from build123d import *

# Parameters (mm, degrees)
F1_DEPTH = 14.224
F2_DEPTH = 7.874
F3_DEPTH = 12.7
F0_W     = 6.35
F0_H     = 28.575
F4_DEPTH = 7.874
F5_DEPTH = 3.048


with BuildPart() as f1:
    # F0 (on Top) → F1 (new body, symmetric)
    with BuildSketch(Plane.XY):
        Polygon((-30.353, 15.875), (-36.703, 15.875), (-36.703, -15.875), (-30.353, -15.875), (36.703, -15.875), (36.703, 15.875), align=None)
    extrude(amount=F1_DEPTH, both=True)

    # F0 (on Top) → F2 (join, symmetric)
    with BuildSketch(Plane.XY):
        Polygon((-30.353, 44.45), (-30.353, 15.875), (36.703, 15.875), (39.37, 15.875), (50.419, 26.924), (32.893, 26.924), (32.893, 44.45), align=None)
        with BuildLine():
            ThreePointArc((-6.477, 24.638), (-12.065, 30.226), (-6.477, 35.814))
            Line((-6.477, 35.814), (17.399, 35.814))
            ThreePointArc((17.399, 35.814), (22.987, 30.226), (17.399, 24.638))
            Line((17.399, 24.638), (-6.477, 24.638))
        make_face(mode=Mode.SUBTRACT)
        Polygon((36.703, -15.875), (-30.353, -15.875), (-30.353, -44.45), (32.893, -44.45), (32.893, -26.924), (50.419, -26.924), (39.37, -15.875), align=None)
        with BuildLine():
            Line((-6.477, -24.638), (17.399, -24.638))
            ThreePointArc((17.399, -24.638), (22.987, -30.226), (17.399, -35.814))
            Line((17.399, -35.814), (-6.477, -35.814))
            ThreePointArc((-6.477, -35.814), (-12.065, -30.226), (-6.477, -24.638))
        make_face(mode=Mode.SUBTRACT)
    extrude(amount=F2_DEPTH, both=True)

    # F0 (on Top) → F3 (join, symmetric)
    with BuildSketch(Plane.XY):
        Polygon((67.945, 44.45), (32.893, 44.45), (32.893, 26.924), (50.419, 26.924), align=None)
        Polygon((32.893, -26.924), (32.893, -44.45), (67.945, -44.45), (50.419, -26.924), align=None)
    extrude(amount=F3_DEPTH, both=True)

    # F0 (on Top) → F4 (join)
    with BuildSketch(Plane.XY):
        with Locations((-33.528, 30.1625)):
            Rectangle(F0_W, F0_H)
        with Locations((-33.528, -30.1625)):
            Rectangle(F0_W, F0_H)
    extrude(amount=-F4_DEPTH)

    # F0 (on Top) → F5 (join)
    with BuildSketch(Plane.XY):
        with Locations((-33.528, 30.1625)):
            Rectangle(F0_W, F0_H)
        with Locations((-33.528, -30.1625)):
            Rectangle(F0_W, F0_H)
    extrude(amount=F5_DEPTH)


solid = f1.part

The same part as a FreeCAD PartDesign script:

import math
import FreeCAD as App
import Part
import Sketcher

V = App.Vector
Q = App.Units.Quantity


def add_polygon(sketch, points):
    """Adds a closed chain of lines whose ends are joined by coincident constraints."""
    first, n = sketch.GeometryCount, len(points)
    for a, b in zip(points, points[1:] + points[:1]):
        sketch.addGeometry(Part.LineSegment(App.Vector(*a, 0), App.Vector(*b, 0)), False)
    for i in range(n):
        sketch.addConstraint(Sketcher.Constraint("Coincident", first + i, 2, first + (i + 1) % n, 1))

doc = App.newDocument("Part")
params = doc.addObject("Spreadsheet::Sheet", "Params")
for row, (alias, value) in enumerate([
    ("sketch1_width", "2.89 in"),
    ("sketch1_height", "1.25 in"),
    ("pad1_length", "1.12 in"),
    ("sketch2_radius", "0.22 in"),
    ("sketch2_width", "0.69 in"),
    ("sketch2_width2", "2.49 in"),
    ("sketch2_width3", "0.94 in"),
    ("sketch2_width4", "2.745 in"),
    ("pad2_length", "0.62 in"),
    ("sketch3_width", "1.38 in"),
    ("pad3_length", "1 in"),
    ("sketch4_width", "0.25 in"),
    ("sketch4_height", "1.125 in"),
    ("pad4_length", "0.31 in"),
    ("sketch5_width", "0.25 in"),
    ("sketch5_height", "1.125 in"),
    ("pad5_length", "0.12 in"),
], start=1):
    params.set(f"A{row}", alias)
    params.set(f"B{row}", "=" + value)
    params.setAlias(f"B{row}", alias)

body = doc.addObject("PartDesign::Body", "Body")

sketch1 = doc.addObject("Sketcher::SketchObject", "Sketch")
body.addObject(sketch1)
sketch1.AttachmentSupport = (doc.XY_Plane, [""])
sketch1.MapMode = "FlatFace"
add_polygon(sketch1, [(-37, 16), (-37, -16), (37, -16), (37, 16)])
sketch1.addConstraint([
    Sketcher.Constraint("Vertical", 0),
    Sketcher.Constraint("Horizontal", 1),
    Sketcher.Constraint("Vertical", 2),
    Sketcher.Constraint("Horizontal", 3),
    Sketcher.Constraint("Symmetric", 0, 2, 2, 2, -1, 1),
    Sketcher.Constraint("DistanceX", 1, 1, 1, 2, Q("2.89 in")),
    Sketcher.Constraint("DistanceY", 0, 2, 0, 1, Q("1.25 in")),
])
sketch1.setExpression("Constraints[9]", "Params.sketch1_width")
sketch1.setExpression("Constraints[10]", "Params.sketch1_height")
pad1 = doc.addObject("PartDesign::Pad", "Pad")
body.addObject(pad1)
pad1.Profile = sketch1
pad1.setExpression("Length", "Params.pad1_length")
pad1.Midplane = True

sketch2 = doc.addObject("Sketcher::SketchObject", "Sketch001")
body.addObject(sketch2)
sketch2.AttachmentSupport = (doc.XY_Plane, [""])
sketch2.MapMode = "FlatFace"
add_polygon(sketch2, [(-30, 44), (-30, 16), (39, 16), (50, 27), (33, 27), (33, 44)])
sketch2.addGeometry(Part.LineSegment(V(17, 25, 0), V(-6, 25, 0)), False)
sketch2.addGeometry(Part.ArcOfCircle(Part.Circle(V(-6, 30, 0), V(0, 0, 1), 6), math.radians(90), math.radians(270)), False)
sketch2.addGeometry(Part.LineSegment(V(-6, 36, 0), V(17, 36, 0)), False)
sketch2.addGeometry(Part.ArcOfCircle(Part.Circle(V(17, 30, 0), V(0, 0, 1), 6), math.radians(-90), math.radians(90)), False)
add_polygon(sketch2, [(-30, -16), (-30, -44), (33, -44), (33, -27), (50, -27), (39, -16)])
sketch2.addGeometry(Part.ArcOfCircle(Part.Circle(V(-6, -30, 0), V(0, 0, 1), 6), math.radians(90), math.radians(270)), False)
sketch2.addGeometry(Part.LineSegment(V(-6, -25, 0), V(17, -25, 0)), False)
sketch2.addGeometry(Part.ArcOfCircle(Part.Circle(V(17, -30, 0), V(0, 0, 1), 6), math.radians(-90), math.radians(90)), False)
sketch2.addGeometry(Part.LineSegment(V(17, -36, 0), V(-6, -36, 0)), False)
sketch2.addConstraint([
    Sketcher.Constraint("Tangent", 6, 2, 7, 2),
    Sketcher.Constraint("Tangent", 7, 1, 8, 1),
    Sketcher.Constraint("Tangent", 8, 2, 9, 2),
    Sketcher.Constraint("Tangent", 9, 1, 6, 1),
    Sketcher.Constraint("Tangent", 16, 1, 17, 1),
    Sketcher.Constraint("Tangent", 17, 2, 18, 2),
    Sketcher.Constraint("Tangent", 18, 1, 19, 1),
    Sketcher.Constraint("Tangent", 19, 2, 16, 2),
    Sketcher.Constraint("Vertical", 0),
    Sketcher.Constraint("Horizontal", 1),
    Sketcher.Constraint("Horizontal", 3),
    Sketcher.Constraint("Vertical", 4),
    Sketcher.Constraint("Horizontal", 5),
    Sketcher.Constraint("Horizontal", 6),
    Sketcher.Constraint("Horizontal", 8),
    Sketcher.Constraint("Vertical", 10),
    Sketcher.Constraint("Horizontal", 11),
    Sketcher.Constraint("Vertical", 12),
    Sketcher.Constraint("Horizontal", 13),
    Sketcher.Constraint("Horizontal", 15),
    Sketcher.Constraint("Horizontal", 17),
    Sketcher.Constraint("Horizontal", 19),
    Sketcher.Constraint("Equal", 9, 16),
    Sketcher.Constraint("Symmetric", 7, 3, 16, 3, -1),
    Sketcher.Constraint("Symmetric", 5, 2, 10, 2, -1),
    Sketcher.Constraint("Symmetric", 3, 2, 12, 2, -1),
    Sketcher.Constraint("Symmetric", 1, 2, 14, 2, -1),
    Sketcher.Constraint("Perpendicular", 2, 14),
    Sketcher.Constraint("Vertical", 9, 3, 18, 3),
    Sketcher.Constraint("Vertical", 2, 2, 13, 2),
    Sketcher.Constraint("Equal", 13, 4),
    Sketcher.Constraint("Radius", 7, Q("0.22 in")),
    Sketcher.Constraint("DistanceX", 3, 2, 3, 1, Q("0.69 in")),
    Sketcher.Constraint("DistanceX", 5, 2, 5, 1, Q("2.49 in")),
    Sketcher.Constraint("DistanceX", 6, 2, 6, 1, Q("0.94 in")),
    Sketcher.Constraint("DistanceX", 9, 3, 2, 2, Q("1.3 in")),
    Sketcher.Constraint("DistanceX", 1, 1, 1, 2, Q("2.745 in")),
    Sketcher.Constraint("DistanceY", -1, 1, 7, 3, Q("1.19 in")),
    Sketcher.Constraint("DistanceX", -1, 1, 1, 2, Q("1.55 in")),
    Sketcher.Constraint("DistanceY", -1, 1, 2, 2, Q("1.06 in")),
])
sketch2.setExpression("Constraints[43]", "Params.sketch2_radius")
sketch2.setExpression("Constraints[44]", "Params.sketch2_width")
sketch2.setExpression("Constraints[45]", "Params.sketch2_width2")
sketch2.setExpression("Constraints[46]", "Params.sketch2_width3")
sketch2.setExpression("Constraints[48]", "Params.sketch2_width4")
pad2 = doc.addObject("PartDesign::Pad", "Pad001")
body.addObject(pad2)
pad2.Profile = sketch2
pad2.setExpression("Length", "Params.pad2_length")
pad2.Midplane = True

sketch3 = doc.addObject("Sketcher::SketchObject", "Sketch002")
body.addObject(sketch3)
sketch3.AttachmentSupport = (doc.XY_Plane, [""])
sketch3.MapMode = "FlatFace"
add_polygon(sketch3, [(68, 44), (33, 44), (33, 27), (50, 27)])
add_polygon(sketch3, [(33, -27), (33, -44), (68, -44), (50, -27)])
sketch3.addConstraint([
    Sketcher.Constraint("Horizontal", 0),
    Sketcher.Constraint("Vertical", 1),
    Sketcher.Constraint("Horizontal", 2),
    Sketcher.Constraint("Vertical", 4),
    Sketcher.Constraint("Horizontal", 5),
    Sketcher.Constraint("Horizontal", 7),
    Sketcher.Constraint("Symmetric", 0, 2, 4, 2, -1),
    Sketcher.Constraint("Symmetric", 2, 2, 6, 2, -1),
    Sketcher.Constraint("Perpendicular", 3, 6),
    Sketcher.Constraint("Vertical", 3, 2, 5, 2),
    Sketcher.Constraint("Equal", 7, 1),
    Sketcher.Constraint("DistanceX", 0, 2, 0, 1, Q("1.38 in")),
    Sketcher.Constraint("DistanceY", 4, 2, 0, 2, Q("3.5 in")),
    Sketcher.Constraint("DistanceX", -1, 1, 0, 2, Q("1.295 in")),
])
sketch3.setExpression("Constraints[19]", "Params.sketch3_width")
pad3 = doc.addObject("PartDesign::Pad", "Pad002")
body.addObject(pad3)
pad3.Profile = sketch3
pad3.setExpression("Length", "Params.pad3_length")
pad3.Midplane = True

sketch4 = doc.addObject("Sketcher::SketchObject", "Sketch003")
body.addObject(sketch4)
sketch4.AttachmentSupport = (doc.XY_Plane, [""])
sketch4.MapMode = "FlatFace"
add_polygon(sketch4, [(-37, 44), (-37, 16), (-30, 16), (-30, 44)])
add_polygon(sketch4, [(-37, -16), (-37, -44), (-30, -44), (-30, -16)])
sketch4.addConstraint([
    Sketcher.Constraint("Vertical", 0),
    Sketcher.Constraint("Horizontal", 1),
    Sketcher.Constraint("Vertical", 2),
    Sketcher.Constraint("Horizontal", 3),
    Sketcher.Constraint("Vertical", 4),
    Sketcher.Constraint("Horizontal", 5),
    Sketcher.Constraint("Vertical", 6),
    Sketcher.Constraint("Horizontal", 7),
    Sketcher.Constraint("Symmetric", 3, 2, 4, 2, -1),
    Sketcher.Constraint("Symmetric", 1, 2, 6, 2, -1),
    Sketcher.Constraint("DistanceX", 1, 1, 1, 2, Q("0.25 in")),
    Sketcher.Constraint("DistanceY", 4, 2, 3, 2, Q("3.5 in")),
    Sketcher.Constraint("DistanceY", 0, 2, 0, 1, Q("1.125 in")),
    Sketcher.Constraint("DistanceX", 0, 2, -1, 1, Q("1.445 in")),
])
sketch4.setExpression("Constraints[18]", "Params.sketch4_width")
sketch4.setExpression("Constraints[20]", "Params.sketch4_height")
pad4 = doc.addObject("PartDesign::Pad", "Pad003")
body.addObject(pad4)
pad4.Profile = sketch4
pad4.setExpression("Length", "Params.pad4_length")
pad4.Reversed = True

sketch5 = doc.addObject("Sketcher::SketchObject", "Sketch004")
body.addObject(sketch5)
sketch5.AttachmentSupport = (doc.XY_Plane, [""])
sketch5.MapMode = "FlatFace"
add_polygon(sketch5, [(-37, 44), (-37, 16), (-30, 16), (-30, 44)])
add_polygon(sketch5, [(-37, -16), (-37, -44), (-30, -44), (-30, -16)])
sketch5.addConstraint([
    Sketcher.Constraint("Vertical", 0),
    Sketcher.Constraint("Horizontal", 1),
    Sketcher.Constraint("Vertical", 2),
    Sketcher.Constraint("Horizontal", 3),
    Sketcher.Constraint("Vertical", 4),
    Sketcher.Constraint("Horizontal", 5),
    Sketcher.Constraint("Vertical", 6),
    Sketcher.Constraint("Horizontal", 7),
    Sketcher.Constraint("Symmetric", 3, 2, 4, 2, -1),
    Sketcher.Constraint("Symmetric", 1, 2, 6, 2, -1),
    Sketcher.Constraint("DistanceX", 1, 1, 1, 2, Q("0.25 in")),
    Sketcher.Constraint("DistanceY", 4, 2, 3, 2, Q("3.5 in")),
    Sketcher.Constraint("DistanceY", 0, 2, 0, 1, Q("1.125 in")),
    Sketcher.Constraint("DistanceX", 0, 2, -1, 1, Q("1.445 in")),
])
sketch5.setExpression("Constraints[18]", "Params.sketch5_width")
sketch5.setExpression("Constraints[20]", "Params.sketch5_height")
pad5 = doc.addObject("PartDesign::Pad", "Pad004")
body.addObject(pad5)
pad5.Profile = sketch5
pad5.setExpression("Length", "Params.pad5_length")

doc.recompute()
